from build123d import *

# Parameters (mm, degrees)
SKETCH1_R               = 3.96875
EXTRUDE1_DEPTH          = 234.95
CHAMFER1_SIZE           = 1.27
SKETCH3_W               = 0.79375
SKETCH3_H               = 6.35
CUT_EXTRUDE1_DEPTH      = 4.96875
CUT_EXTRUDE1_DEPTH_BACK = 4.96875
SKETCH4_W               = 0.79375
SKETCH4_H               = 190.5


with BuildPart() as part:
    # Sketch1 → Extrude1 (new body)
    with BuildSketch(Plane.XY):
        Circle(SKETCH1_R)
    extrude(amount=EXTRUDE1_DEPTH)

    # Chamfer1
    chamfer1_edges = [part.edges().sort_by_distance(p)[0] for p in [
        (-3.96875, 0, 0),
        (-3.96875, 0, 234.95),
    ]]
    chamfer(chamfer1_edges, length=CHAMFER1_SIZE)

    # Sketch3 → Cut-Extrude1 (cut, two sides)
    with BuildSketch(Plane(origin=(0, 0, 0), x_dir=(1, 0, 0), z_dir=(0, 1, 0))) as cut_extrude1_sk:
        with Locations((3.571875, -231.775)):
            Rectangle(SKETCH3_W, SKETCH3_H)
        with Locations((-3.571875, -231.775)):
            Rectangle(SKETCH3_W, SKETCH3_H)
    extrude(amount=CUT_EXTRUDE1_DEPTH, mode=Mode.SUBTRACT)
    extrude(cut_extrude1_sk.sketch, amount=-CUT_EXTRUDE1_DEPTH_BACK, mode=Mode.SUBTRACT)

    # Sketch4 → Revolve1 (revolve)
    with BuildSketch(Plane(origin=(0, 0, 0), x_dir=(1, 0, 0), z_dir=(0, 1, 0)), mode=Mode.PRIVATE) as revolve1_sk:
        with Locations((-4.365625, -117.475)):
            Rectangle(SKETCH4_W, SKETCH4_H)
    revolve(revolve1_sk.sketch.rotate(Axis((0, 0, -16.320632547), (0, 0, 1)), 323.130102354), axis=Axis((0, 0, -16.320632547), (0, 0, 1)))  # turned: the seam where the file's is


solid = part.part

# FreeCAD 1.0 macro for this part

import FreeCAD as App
import Part
import Sketcher

V = App.Vector
Q = App.Units.Quantity


def edges_at(feature, points):
    """Names of the edges that pass closest to the given points."""
    edges = feature.Shape.Edges
    near = lambda p: min(range(len(edges)), key=lambda i: edges[i].distToShape(Part.Vertex(*p))[0])
    return sorted({f"Edge{near(p) + 1}" for p in points})

doc = App.newDocument("Part")
body = doc.addObject("PartDesign::Body", "Body")

# Sketch on XY plane
sketch1 = body.newObject("Sketcher::SketchObject", "Sketch")
sketch1.AttachmentSupport = (doc.getObject("XY_Plane"), [""])
sketch1.MapMode = "FlatFace"
sketch1.addGeometry(Part.Circle(V(0, 0, 0), V(0, 0, 1), 3.96875), False)
sketch1.addConstraint(Sketcher.Constraint("Coincident", 0, 3, -1, 1))
sketch1.addConstraint(Sketcher.Constraint("Diameter", 0, Q("0.3125 in")))
pad1 = body.newObject("PartDesign::Pad", "Pad")
pad1.Profile = sketch1
pad1.Length = Q("9.25 in")
doc.recompute()

chamfer = body.newObject("PartDesign::Chamfer", "Chamfer")
chamfer.Base = (pad1, edges_at(pad1, [(-3.969, 0, 0), (-3.969, 0, 234.95)]))
chamfer.Size = Q("0.05 in")

# Sketch on XZ plane
sketch2 = body.newObject("Sketcher::SketchObject", "Sketch001")
sketch2.AttachmentSupport = (doc.getObject("XZ_Plane"), [""])
sketch2.MapMode = "FlatFace"
sketch2.addGeometry(Part.LineSegment(V(3.175, 228.6, 0), V(3.175, 234.95, 0)), False)
sketch2.addGeometry(Part.LineSegment(V(3.175, 234.95, 0), V(3.96875, 234.95, 0)), False)
sketch2.addGeometry(Part.LineSegment(V(3.96875, 234.95, 0), V(3.96875, 228.6, 0)), False)
sketch2.addGeometry(Part.LineSegment(V(3.96875, 228.6, 0), V(3.175, 228.6, 0)), False)
sketch2.addGeometry(Part.LineSegment(V(-3.96875, 228.6, 0), V(-3.96875, 234.95, 0)), False)
sketch2.addGeometry(Part.LineSegment(V(-3.96875, 234.95, 0), V(-3.175, 234.95, 0)), False)
sketch2.addGeometry(Part.LineSegment(V(-3.175, 234.95, 0), V(-3.175, 228.6, 0)), False)
sketch2.addGeometry(Part.LineSegment(V(-3.175, 228.6, 0), V(-3.96875, 228.6, 0)), False)
sketch2.addConstraint(Sketcher.Constraint("Coincident", 0, 2, 1, 1))
sketch2.addConstraint(Sketcher.Constraint("Coincident", 1, 2, 2, 1))
sketch2.addConstraint(Sketcher.Constraint("Coincident", 2, 2, 3, 1))
sketch2.addConstraint(Sketcher.Constraint("Coincident", 3, 2, 0, 1))
sketch2.addConstraint(Sketcher.Constraint("Coincident", 4, 2, 5, 1))
sketch2.addConstraint(Sketcher.Constraint("Coincident", 5, 2, 6, 1))
sketch2.addConstraint(Sketcher.Constraint("Coincident", 6, 2, 7, 1))
sketch2.addConstraint(Sketcher.Constraint("Coincident", 7, 2, 4, 1))
sketch2.addConstraint(Sketcher.Constraint("Vertical", 0))
sketch2.addConstraint(Sketcher.Constraint("Horizontal", 1))
sketch2.addConstraint(Sketcher.Constraint("Vertical", 2))
sketch2.addConstraint(Sketcher.Constraint("Horizontal", 3))
sketch2.addConstraint(Sketcher.Constraint("Vertical", 4))
sketch2.addConstraint(Sketcher.Constraint("Horizontal", 5))
sketch2.addConstraint(Sketcher.Constraint("Vertical", 6))
sketch2.addConstraint(Sketcher.Constraint("Horizontal", 7))
sketch2.addConstraint(Sketcher.Constraint("Symmetric", 1, 2, 4, 2, -2))
sketch2.addConstraint(Sketcher.Constraint("Symmetric", 3, 2, 6, 2, -2))
sketch2.addConstraint(Sketcher.Constraint("DistanceY", -1, 1, 2, 2, Q("9 in")))
sketch2.addConstraint(Sketcher.Constraint("DistanceY", 0, 1, 0, 2, Q("0.25 in")))
sketch2.addConstraint(Sketcher.Constraint("DistanceX", 1, 1, 1, 2, Q("0.03125 in")))
sketch2.addConstraint(Sketcher.Constraint("DistanceX", 5, 2, 0, 2, Q("0.25 in")))
pocket1 = body.newObject("PartDesign::Pocket", "Pocket")
pocket1.Profile = sketch2
pocket1.Type = "ThroughAll"
pocket1.Midplane = True

# Sketch on XZ plane
sketch3 = body.newObject("Sketcher::SketchObject", "Sketch002")
sketch3.AttachmentSupport = (doc.getObject("XZ_Plane"), [""])
sketch3.MapMode = "FlatFace"
sketch3.addGeometry(Part.LineSegment(V(-4.7625, 22.225, 0), V(-4.7625, 212.725, 0)), False)
sketch3.addGeometry(Part.LineSegment(V(-4.7625, 212.725, 0), V(-3.96875, 212.725, 0)), False)
sketch3.addGeometry(Part.LineSegment(V(-3.96875, 212.725, 0), V(-3.96875, 22.225, 0)), False)
sketch3.addGeometry(Part.LineSegment(V(-3.96875, 22.225, 0), V(-4.7625, 22.225, 0)), False)
sketch3.addConstraint(Sketcher.Constraint("Coincident", 0, 2, 1, 1))
sketch3.addConstraint(Sketcher.Constraint("Coincident", 1, 2, 2, 1))
sketch3.addConstraint(Sketcher.Constraint("Coincident", 2, 2, 3, 1))
sketch3.addConstraint(Sketcher.Constraint("Coincident", 3, 2, 0, 1))
sketch3.addConstraint(Sketcher.Constraint("Vertical", 0))
sketch3.addConstraint(Sketcher.Constraint("Horizontal", 1))
sketch3.addConstraint(Sketcher.Constraint("Vertical", 2))
sketch3.addConstraint(Sketcher.Constraint("Horizontal", 3))
sketch3.addConstraint(Sketcher.Constraint("DistanceY", 0, 1, 0, 2, Q("7.5 in")))
sketch3.addConstraint(Sketcher.Constraint("DistanceX", 1, 1, 1, 2, Q("0.03125 in")))
sketch3.addConstraint(Sketcher.Constraint("DistanceX", 0, 2, -1, 1, Q("0.1875 in")))
sketch3.addConstraint(Sketcher.Constraint("DistanceY", -1, 1, 0, 2, Q("8.375 in")))
revolution = body.newObject("PartDesign::Revolution", "Revolution")
revolution.Profile = sketch3
revolution.ReferenceAxis = (sketch3, ["V_Axis"])
revolution.Angle = 360

doc.recompute()
